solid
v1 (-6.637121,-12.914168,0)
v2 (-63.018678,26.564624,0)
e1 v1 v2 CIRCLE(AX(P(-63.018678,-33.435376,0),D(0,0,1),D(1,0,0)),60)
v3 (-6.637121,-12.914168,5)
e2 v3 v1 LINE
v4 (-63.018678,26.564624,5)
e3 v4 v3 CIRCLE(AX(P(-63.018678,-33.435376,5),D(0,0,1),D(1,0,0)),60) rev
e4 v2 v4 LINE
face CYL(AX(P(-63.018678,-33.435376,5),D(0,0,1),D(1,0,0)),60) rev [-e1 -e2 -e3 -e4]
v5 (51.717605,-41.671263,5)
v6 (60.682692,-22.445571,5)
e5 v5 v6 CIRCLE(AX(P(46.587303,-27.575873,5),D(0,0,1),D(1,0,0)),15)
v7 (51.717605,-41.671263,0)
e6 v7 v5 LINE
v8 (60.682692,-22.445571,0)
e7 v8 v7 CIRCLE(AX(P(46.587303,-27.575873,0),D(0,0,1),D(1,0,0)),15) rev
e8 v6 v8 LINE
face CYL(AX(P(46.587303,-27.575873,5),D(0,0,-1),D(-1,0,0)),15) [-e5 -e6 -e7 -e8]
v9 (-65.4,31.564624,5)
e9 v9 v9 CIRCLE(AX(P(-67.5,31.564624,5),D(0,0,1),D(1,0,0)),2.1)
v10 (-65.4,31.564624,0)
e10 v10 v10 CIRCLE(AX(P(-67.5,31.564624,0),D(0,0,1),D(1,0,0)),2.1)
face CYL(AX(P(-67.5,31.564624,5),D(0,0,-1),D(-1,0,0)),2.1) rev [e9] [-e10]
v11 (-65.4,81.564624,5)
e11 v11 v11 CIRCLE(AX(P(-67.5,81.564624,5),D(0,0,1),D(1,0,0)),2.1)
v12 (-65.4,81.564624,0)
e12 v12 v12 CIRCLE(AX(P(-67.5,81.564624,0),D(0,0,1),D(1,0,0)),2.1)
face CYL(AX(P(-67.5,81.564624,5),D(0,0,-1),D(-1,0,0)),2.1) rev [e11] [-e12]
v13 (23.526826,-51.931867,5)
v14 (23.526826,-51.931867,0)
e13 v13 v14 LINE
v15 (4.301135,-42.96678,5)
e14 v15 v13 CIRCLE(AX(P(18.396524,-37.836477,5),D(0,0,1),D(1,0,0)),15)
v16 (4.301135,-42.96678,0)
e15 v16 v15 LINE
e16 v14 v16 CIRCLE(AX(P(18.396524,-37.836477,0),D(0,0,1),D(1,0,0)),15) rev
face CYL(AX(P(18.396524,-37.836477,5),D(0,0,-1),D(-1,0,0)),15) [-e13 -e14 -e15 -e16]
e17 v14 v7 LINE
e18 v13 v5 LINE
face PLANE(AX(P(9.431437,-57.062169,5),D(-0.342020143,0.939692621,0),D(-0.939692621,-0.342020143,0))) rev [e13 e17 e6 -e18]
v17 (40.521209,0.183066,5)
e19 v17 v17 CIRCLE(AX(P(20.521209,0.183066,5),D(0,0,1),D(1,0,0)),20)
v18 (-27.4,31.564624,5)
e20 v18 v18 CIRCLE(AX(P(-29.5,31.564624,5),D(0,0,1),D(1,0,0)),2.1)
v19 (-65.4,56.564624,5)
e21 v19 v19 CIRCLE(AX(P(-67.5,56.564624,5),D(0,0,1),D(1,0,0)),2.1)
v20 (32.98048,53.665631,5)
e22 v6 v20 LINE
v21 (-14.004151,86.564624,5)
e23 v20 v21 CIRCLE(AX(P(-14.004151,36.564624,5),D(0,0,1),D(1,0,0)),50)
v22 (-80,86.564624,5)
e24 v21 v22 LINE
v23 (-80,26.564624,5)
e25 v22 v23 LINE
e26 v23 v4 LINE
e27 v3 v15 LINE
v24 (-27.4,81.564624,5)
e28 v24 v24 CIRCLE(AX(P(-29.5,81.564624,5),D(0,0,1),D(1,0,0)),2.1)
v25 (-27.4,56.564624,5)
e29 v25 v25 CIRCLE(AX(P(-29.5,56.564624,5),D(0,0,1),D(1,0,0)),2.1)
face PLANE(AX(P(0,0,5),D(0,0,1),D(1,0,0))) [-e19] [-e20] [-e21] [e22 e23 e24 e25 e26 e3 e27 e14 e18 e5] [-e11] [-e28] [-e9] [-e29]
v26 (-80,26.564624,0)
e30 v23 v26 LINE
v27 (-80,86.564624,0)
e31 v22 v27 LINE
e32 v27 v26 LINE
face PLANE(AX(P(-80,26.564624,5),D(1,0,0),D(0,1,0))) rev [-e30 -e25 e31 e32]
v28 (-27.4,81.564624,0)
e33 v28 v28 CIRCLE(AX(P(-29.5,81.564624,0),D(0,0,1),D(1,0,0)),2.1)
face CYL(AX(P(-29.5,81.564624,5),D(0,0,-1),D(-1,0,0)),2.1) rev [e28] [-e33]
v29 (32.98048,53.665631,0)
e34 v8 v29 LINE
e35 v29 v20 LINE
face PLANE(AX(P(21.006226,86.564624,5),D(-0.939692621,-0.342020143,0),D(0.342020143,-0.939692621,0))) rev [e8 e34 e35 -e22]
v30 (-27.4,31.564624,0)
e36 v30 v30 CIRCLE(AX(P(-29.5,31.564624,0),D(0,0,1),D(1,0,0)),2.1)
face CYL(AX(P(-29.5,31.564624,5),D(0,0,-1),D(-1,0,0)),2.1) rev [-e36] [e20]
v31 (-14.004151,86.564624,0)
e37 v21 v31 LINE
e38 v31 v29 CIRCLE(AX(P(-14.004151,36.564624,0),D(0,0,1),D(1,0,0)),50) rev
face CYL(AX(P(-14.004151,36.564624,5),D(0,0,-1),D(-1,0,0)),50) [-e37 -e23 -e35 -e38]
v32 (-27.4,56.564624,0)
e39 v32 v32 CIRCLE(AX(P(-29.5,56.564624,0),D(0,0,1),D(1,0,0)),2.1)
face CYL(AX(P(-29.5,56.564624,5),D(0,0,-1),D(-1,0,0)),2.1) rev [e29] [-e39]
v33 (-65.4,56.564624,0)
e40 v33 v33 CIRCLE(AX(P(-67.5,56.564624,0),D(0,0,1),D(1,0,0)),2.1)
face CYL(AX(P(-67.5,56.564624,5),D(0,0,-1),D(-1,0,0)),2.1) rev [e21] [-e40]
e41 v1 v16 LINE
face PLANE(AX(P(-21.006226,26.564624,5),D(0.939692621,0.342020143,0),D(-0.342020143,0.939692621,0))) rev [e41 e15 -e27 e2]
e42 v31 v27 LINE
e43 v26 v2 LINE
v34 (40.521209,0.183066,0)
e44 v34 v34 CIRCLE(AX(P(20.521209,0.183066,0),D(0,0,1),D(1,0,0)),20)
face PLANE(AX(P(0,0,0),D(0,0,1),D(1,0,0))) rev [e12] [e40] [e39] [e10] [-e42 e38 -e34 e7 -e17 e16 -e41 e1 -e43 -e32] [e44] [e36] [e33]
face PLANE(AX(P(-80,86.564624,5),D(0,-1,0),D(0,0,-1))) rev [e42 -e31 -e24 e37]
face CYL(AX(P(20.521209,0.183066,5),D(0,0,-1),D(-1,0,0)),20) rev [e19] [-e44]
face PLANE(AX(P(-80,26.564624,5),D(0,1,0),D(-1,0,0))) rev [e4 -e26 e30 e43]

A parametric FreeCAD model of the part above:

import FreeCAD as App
import Part
import Sketcher
from FreeCAD import Vector
Q = App.Units.Quantity


def edges_at(feature, points):
    """Names of the edges that pass closest to the given points."""
    edges = feature.Shape.Edges
    near = lambda p: min(range(len(edges)), key=lambda i: edges[i].distToShape(Part.Vertex(*p))[0])
    return sorted({f"Edge{near(p) + 1}" for p in points})


def add_polygon(sketch, points):
    """Adds a closed chain of lines whose ends are joined by coincident constraints."""
    first, n = sketch.GeometryCount, len(points)
    for a, b in zip(points, points[1:] + points[:1]):
        sketch.addGeometry(Part.LineSegment(App.Vector(*a, 0), App.Vector(*b, 0)), False)
    for i in range(n):
        sketch.addConstraint(Sketcher.Constraint("Coincident", first + i, 2, first + (i + 1) % n, 1))

doc = App.newDocument("Part")
params = doc.addObject("Spreadsheet::Sheet", "Params")
for row, (alias, value) in enumerate([
    ("sketch1_diameter", "40 mm"),
    ("sketch1_diameter2", "4.2 mm"),
    ("sketch1_height", "60 mm"),
    ("sketch1_length", "60 mm"),
    ("pad1_length", "5 mm"),
    ("fillet_radius", "50 mm"),
    ("fillet2_radius", "60 mm"),
    ("fillet3_radius", "15 mm"),
], start=1):
    params.set(f"A{row}", alias)
    params.set(f"B{row}", "=" + value)
    params.setAlias(f"B{row}", alias)

body = doc.addObject("PartDesign::Body", "Body")

# Sketch on XY plane
sketch1 = body.newObject("Sketcher::SketchObject", "Sketch")
sketch1.AttachmentSupport = (doc.getObject("XY_Plane"), [""])
sketch1.MapMode = "FlatFace"
add_polygon(sketch1, [(-80, 86.6), (-80, 26.6), (-21, 26.6), (9.4, -57.1), (65.8, -36.5), (21, 86.6)])  # lines 0-5
sketch1.addGeometry(Part.Circle(Vector(20.5, 0.2, 0), Vector(0, 0, 1), 20), False)  # 6
sketch1.addGeometry(Part.Circle(Vector(-29.5, 31.6, 0), Vector(0, 0, 1), 2.1), False)  # 7
sketch1.addGeometry(Part.Circle(Vector(-67.5, 31.6, 0), Vector(0, 0, 1), 2.1), False)  # 8
sketch1.addGeometry(Part.Circle(Vector(-29.5, 56.6, 0), Vector(0, 0, 1), 2.1), False)  # 9
sketch1.addGeometry(Part.Circle(Vector(-67.5, 56.6, 0), Vector(0, 0, 1), 2.1), False)  # 10
sketch1.addGeometry(Part.Circle(Vector(-29.5, 81.6, 0), Vector(0, 0, 1), 2.1), False)  # 11
sketch1.addGeometry(Part.Circle(Vector(-67.5, 81.6, 0), Vector(0, 0, 1), 2.1), False)  # 12
sketch1.addConstraint(Sketcher.Constraint("Vertical", 0))
sketch1.addConstraint(Sketcher.Constraint("Horizontal", 1))
sketch1.addConstraint(Sketcher.Constraint("Horizontal", 5))
sketch1.addConstraint(Sketcher.Constraint("Equal", 7, 8))
sketch1.addConstraint(Sketcher.Constraint("Equal", 8, 9))
sketch1.addConstraint(Sketcher.Constraint("Equal", 9, 10))
sketch1.addConstraint(Sketcher.Constraint("Equal", 10, 11))
sketch1.addConstraint(Sketcher.Constraint("Equal", 11, 12))
sketch1.addConstraint(Sketcher.Constraint("Perpendicular", 2, 3))
sketch1.addConstraint(Sketcher.Constraint("Perpendicular", 3, 4))
sketch1.addConstraint(Sketcher.Constraint("Horizontal", 7, 3, 8, 3))
sketch1.addConstraint(Sketcher.Constraint("Horizontal", 9, 3, 10, 3))
sketch1.addConstraint(Sketcher.Constraint("Horizontal", 11, 3, 12, 3))
sketch1.addConstraint(Sketcher.Constraint("Vertical", 7, 3, 9, 3))
sketch1.addConstraint(Sketcher.Constraint("Vertical", 8, 3, 10, 3))
sketch1.addConstraint(Sketcher.Constraint("Vertical", 9, 3, 11, 3))
sketch1.addConstraint(Sketcher.Constraint("Vertical", 10, 3, 12, 3))
sketch1.addConstraint(Sketcher.Constraint("Diameter", 6, Q("40 mm")))
sketch1.addConstraint(Sketcher.Constraint("Diameter", 7, Q("4.2 mm")))
sketch1.addConstraint(Sketcher.Constraint("DistanceY", 0, 2, 0, 1, Q("60 mm")))
sketch1.addConstraint(Sketcher.Constraint("Angle", 2, Q("-70 deg")))
sketch1.addConstraint(Sketcher.Constraint("Distance", 3, Q("60 mm")))
sketch1.addConstraint(Sketcher.Constraint("DistanceX", 0, 2, -1, 1, Q("80 mm")))
sketch1.addConstraint(Sketcher.Constraint("DistanceX", 8, 3, 7, 3, Q("38 mm")))
sketch1.addConstraint(Sketcher.Constraint("DistanceY", 7, 3, 9, 3, Q("25 mm")))
sketch1.addConstraint(Sketcher.Constraint("DistanceY", 9, 3, 11, 3, Q("25 mm")))
sketch1.addConstraint(Sketcher.Constraint("DistanceY", 0, 2, 8, 3, Q("5 mm")))
sketch1.addConstraint(Sketcher.Constraint("DistanceX", 7, 3, -1, 1, Q("29.5 mm")))
sketch1.addConstraint(Sketcher.Constraint("DistanceX", 1, 1, 1, 2, Q("58.993774 mm")))
sketch1.addConstraint(Sketcher.Constraint("DistanceX", -1, 1, 6, 3, Q("20.521209 mm")))
sketch1.addConstraint(Sketcher.Constraint("DistanceY", 2, 2, -1, 1, Q("57.062169 mm")))
sketch1.addConstraint(Sketcher.Constraint("DistanceX", 2, 2, 6, 3, Q("11.089771 mm")))
sketch1.addConstraint(Sketcher.Constraint("DistanceY", -1, 1, 6, 3, Q("0.183066 mm")))
sketch1.setExpression("Constraints[23]", "Params.sketch1_diameter")
sketch1.setExpression("Constraints[24]", "Params.sketch1_diameter2")
sketch1.setExpression("Constraints[25]", "Params.sketch1_height")
sketch1.setExpression("Constraints[27]", "Params.sketch1_length")
pad1 = body.newObject("PartDesign::Pad", "Pad")
pad1.Profile = sketch1
pad1.setExpression("Length", "Params.pad1_length")
doc.recompute()

fillet = body.newObject("PartDesign::Fillet", "Fillet")
fillet.Base = (pad1, edges_at(pad1, [(21.006, 86.565, 2.5)]))
fillet.setExpression("Radius", "Params.fillet_radius")
doc.recompute()

fillet2 = body.newObject("PartDesign::Fillet", "Fillet001")
fillet2.Base = (fillet, edges_at(fillet, [(-21.006, 26.565, 2.5)]))
fillet2.setExpression("Radius", "Params.fillet2_radius")
doc.recompute()

fillet3 = body.newObject("PartDesign::Fillet", "Fillet002")
fillet3.Base = (fillet2, edges_at(fillet2, [(65.813, -36.541, 2.5), (9.431, -57.062, 2.5)]))
fillet3.setExpression("Radius", "Params.fillet3_radius")

doc.recompute()
